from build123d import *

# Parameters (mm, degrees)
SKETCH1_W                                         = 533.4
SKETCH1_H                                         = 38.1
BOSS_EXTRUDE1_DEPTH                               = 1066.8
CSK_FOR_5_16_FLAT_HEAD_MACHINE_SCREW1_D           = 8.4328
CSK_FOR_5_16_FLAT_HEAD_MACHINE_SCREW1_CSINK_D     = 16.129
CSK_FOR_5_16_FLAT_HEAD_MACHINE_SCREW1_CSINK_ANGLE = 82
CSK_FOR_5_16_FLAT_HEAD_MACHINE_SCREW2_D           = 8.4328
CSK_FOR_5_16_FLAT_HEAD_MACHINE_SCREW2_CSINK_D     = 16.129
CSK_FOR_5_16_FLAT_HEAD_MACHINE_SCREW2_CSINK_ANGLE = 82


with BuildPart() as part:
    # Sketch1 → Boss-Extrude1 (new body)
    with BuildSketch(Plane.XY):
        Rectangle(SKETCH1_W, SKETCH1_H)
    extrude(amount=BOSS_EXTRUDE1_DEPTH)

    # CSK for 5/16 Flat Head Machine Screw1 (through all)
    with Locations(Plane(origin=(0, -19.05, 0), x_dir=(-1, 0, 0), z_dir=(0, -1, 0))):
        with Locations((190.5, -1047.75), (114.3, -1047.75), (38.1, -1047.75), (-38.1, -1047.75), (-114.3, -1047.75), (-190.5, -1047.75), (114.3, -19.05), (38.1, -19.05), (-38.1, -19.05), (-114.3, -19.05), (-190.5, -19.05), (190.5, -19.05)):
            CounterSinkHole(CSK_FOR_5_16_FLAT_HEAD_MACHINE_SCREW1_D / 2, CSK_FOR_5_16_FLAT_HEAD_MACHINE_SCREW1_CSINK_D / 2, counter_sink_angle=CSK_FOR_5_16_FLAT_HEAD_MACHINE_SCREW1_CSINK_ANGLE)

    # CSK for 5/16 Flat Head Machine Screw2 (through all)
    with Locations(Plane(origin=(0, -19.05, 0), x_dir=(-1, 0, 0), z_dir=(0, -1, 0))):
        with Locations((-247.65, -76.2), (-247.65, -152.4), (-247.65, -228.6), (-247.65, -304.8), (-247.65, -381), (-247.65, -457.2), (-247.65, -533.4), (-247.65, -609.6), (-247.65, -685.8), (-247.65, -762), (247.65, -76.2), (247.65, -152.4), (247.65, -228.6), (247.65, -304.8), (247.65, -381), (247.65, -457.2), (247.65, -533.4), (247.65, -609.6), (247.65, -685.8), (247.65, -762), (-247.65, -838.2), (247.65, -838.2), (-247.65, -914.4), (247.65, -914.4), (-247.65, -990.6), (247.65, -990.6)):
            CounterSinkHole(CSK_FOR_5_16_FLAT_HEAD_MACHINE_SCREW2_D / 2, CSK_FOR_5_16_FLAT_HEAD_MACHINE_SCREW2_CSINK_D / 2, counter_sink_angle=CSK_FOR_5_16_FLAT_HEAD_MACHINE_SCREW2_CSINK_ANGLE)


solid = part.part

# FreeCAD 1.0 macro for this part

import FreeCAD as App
import Part
import Sketcher
from FreeCAD import Vector
Q = App.Units.Quantity


def add_polygon(sketch, points):
    """Adds a closed chain of lines whose ends are joined by coincident constraints."""
    first, n = sketch.GeometryCount, len(points)
    for a, b in zip(points, points[1:] + points[:1]):
        sketch.addGeometry(Part.LineSegment(App.Vector(*a, 0), App.Vector(*b, 0)), False)
    for i in range(n):
        sketch.addConstraint(Sketcher.Constraint("Coincident", first + i, 2, first + (i + 1) % n, 1))

doc = App.newDocument("Part")
body = doc.addObject("PartDesign::Body", "Body")

sketch1 = body.newObject("Sketcher::SketchObject", "Sketch")
sketch1.AttachmentSupport = (doc.getObject("XY_Plane"), [""])
sketch1.MapMode = "FlatFace"
add_polygon(sketch1, [(-267, 19), (-267, -19), (267, -19), (267, 19)])
sketch1.addConstraint([
    Sketcher.Constraint("Vertical", 0),
    Sketcher.Constraint("Horizontal", 1),
    Sketcher.Constraint("Vertical", 2),
    Sketcher.Constraint("Horizontal", 3),
    Sketcher.Constraint("Symmetric", 0, 2, 2, 2, -1, 1),
    Sketcher.Constraint("DistanceX", 1, 1, 1, 2, Q("21 in")),
    Sketcher.Constraint("DistanceY", 0, 2, 0, 1, Q("1.5 in")),
])
pad1 = body.newObject("PartDesign::Pad", "Pad")
pad1.Profile = sketch1
pad1.Length = Q("42 in")

sketch2 = body.newObject("Sketcher::SketchObject", "Sketch001")
sketch2.AttachmentSupport = (doc.getObject("XZ_Plane"), [""])
sketch2.MapMode = "FlatFace"
sketch2.AttachmentOffset = App.Placement(Vector(0, 0, 0.75 * 25.4), App.Rotation())
sketch2.addGeometry([
    Part.Circle(Vector(-190.5, 1047.8, 0), Vector(0, 0, 1), 4.2),
    Part.Circle(Vector(-114.3, 1047.8, 0), Vector(0, 0, 1), 4.2),
    Part.Circle(Vector(-38.1, 1047.8, 0), Vector(0, 0, 1), 4.2),
    Part.Circle(Vector(38.1, 1047.8, 0), Vector(0, 0, 1), 4.2),
    Part.Circle(Vector(114.3, 1047.8, 0), Vector(0, 0, 1), 4.2),
    Part.Circle(Vector(190.5, 1047.8, 0), Vector(0, 0, 1), 4.2),
    Part.Circle(Vector(-114.3, 19.1, 0), Vector(0, 0, 1), 4.2),
    Part.Circle(Vector(-38.1, 19.1, 0), Vector(0, 0, 1), 4.2),
    Part.Circle(Vector(38.1, 19.1, 0), Vector(0, 0, 1), 4.2),
    Part.Circle(Vector(114.3, 19.1, 0), Vector(0, 0, 1), 4.2),
    Part.Circle(Vector(190.5, 19.1, 0), Vector(0, 0, 1), 4.2),
    Part.Circle(Vector(-190.5, 19.1, 0), Vector(0, 0, 1), 4.2),
], False)
sketch2.addConstraint([
    Sketcher.Constraint("Equal", 0, 1),
    Sketcher.Constraint("Equal", 1, 2),
    Sketcher.Constraint("Equal", 2, 3),
    Sketcher.Constraint("Equal", 3, 4),
    Sketcher.Constraint("Equal", 4, 5),
    Sketcher.Constraint("Equal", 5, 6),
    Sketcher.Constraint("Equal", 6, 7),
    Sketcher.Constraint("Equal", 7, 8),
    Sketcher.Constraint("Equal", 8, 9),
    Sketcher.Constraint("Equal", 9, 10),
    Sketcher.Constraint("Equal", 10, 11),
    Sketcher.Constraint("Symmetric", 2, 3, 3, 3, -2),
    Sketcher.Constraint("Symmetric", 1, 3, 4, 3, -2),
    Sketcher.Constraint("Symmetric", 0, 3, 5, 3, -2),
    Sketcher.Constraint("Symmetric", 7, 3, 8, 3, -2),
    Sketcher.Constraint("Symmetric", 6, 3, 9, 3, -2),
    Sketcher.Constraint("Symmetric", 10, 3, 11, 3, -2),
    Sketcher.Constraint("Horizontal", 0, 3, 1, 3),
    Sketcher.Constraint("Horizontal", 1, 3, 2, 3),
    Sketcher.Constraint("Horizontal", 6, 3, 7, 3),
    Sketcher.Constraint("Horizontal", 9, 3, 10, 3),
    Sketcher.Constraint("Vertical", 1, 3, 6, 3),
    Sketcher.Constraint("Vertical", 2, 3, 7, 3),
    Sketcher.Constraint("Vertical", 5, 3, 10, 3),
    Sketcher.Constraint("Diameter", 0, Q("0.332 in")),
    Sketcher.Constraint("DistanceX", 0, 3, 1, 3, Q("3 in")),
    Sketcher.Constraint("DistanceX", 1, 3, 2, 3, Q("3 in")),
    Sketcher.Constraint("DistanceX", 2, 3, 3, 3, Q("3 in")),
    Sketcher.Constraint("DistanceY", 6, 3, 1, 3, Q("40.5 in")),
    Sketcher.Constraint("DistanceY", -1, 1, 0, 3, Q("41.25 in")),
])
doc.recompute()
hole = body.newObject("PartDesign::Hole", "Hole")
hole.Profile = sketch2
hole.ThreadType = "None"
hole.Diameter = Q("0.332 in")
hole.DepthType = "ThroughAll"
hole.HoleCutType = "Countersink"
hole.HoleCutDiameter = Q("0.635 in")
hole.HoleCutCountersinkAngle = 82

sketch3 = body.newObject("Sketcher::SketchObject", "Sketch002")
sketch3.AttachmentSupport = (doc.getObject("XZ_Plane"), [""])
sketch3.MapMode = "FlatFace"
sketch3.AttachmentOffset = App.Placement(Vector(0, 0, 0.75 * 25.4), App.Rotation())
sketch3.addGeometry([
    Part.Circle(Vector(247.7, 76.2, 0), Vector(0, 0, 1), 4.2),
    Part.Circle(Vector(247.7, 152.4, 0), Vector(0, 0, 1), 4.2),
    Part.Circle(Vector(247.7, 228.6, 0), Vector(0, 0, 1), 4.2),
    Part.Circle(Vector(247.7, 304.8, 0), Vector(0, 0, 1), 4.2),
    Part.Circle(Vector(247.7, 381, 0), Vector(0, 0, 1), 4.2),
    Part.Circle(Vector(247.7, 457.2, 0), Vector(0, 0, 1), 4.2),
    Part.Circle(Vector(247.7, 533.4, 0), Vector(0, 0, 1), 4.2),
    Part.Circle(Vector(247.7, 609.6, 0), Vector(0, 0, 1), 4.2),
    Part.Circle(Vector(247.7, 685.8, 0), Vector(0, 0, 1), 4.2),
    Part.Circle(Vector(247.7, 762, 0), Vector(0, 0, 1), 4.2),
    Part.Circle(Vector(-247.7, 76.2, 0), Vector(0, 0, 1), 4.2),
    Part.Circle(Vector(-247.7, 152.4, 0), Vector(0, 0, 1), 4.2),
    Part.Circle(Vector(-247.7, 228.6, 0), Vector(0, 0, 1), 4.2),
    Part.Circle(Vector(-247.7, 304.8, 0), Vector(0, 0, 1), 4.2),
    Part.Circle(Vector(-247.7, 381, 0), Vector(0, 0, 1), 4.2),
    Part.Circle(Vector(-247.7, 457.2, 0), Vector(0, 0, 1), 4.2),
    Part.Circle(Vector(-247.7, 533.4, 0), Vector(0, 0, 1), 4.2),
    Part.Circle(Vector(-247.7, 609.6, 0), Vector(0, 0, 1), 4.2),
    Part.Circle(Vector(-247.7, 685.8, 0), Vector(0, 0, 1), 4.2),
    Part.Circle(Vector(-247.7, 762, 0), Vector(0, 0, 1), 4.2),
    Part.Circle(Vector(247.7, 838.2, 0), Vector(0, 0, 1), 4.2),
    Part.Circle(Vector(-247.7, 838.2, 0), Vector(0, 0, 1), 4.2),
    Part.Circle(Vector(247.7, 914.4, 0), Vector(0, 0, 1), 4.2),
    Part.Circle(Vector(-247.7, 914.4, 0), Vector(0, 0, 1), 4.2),
    Part.Circle(Vector(247.7, 990.6, 0), Vector(0, 0, 1), 4.2),
    Part.Circle(Vector(-247.7, 990.6, 0), Vector(0, 0, 1), 4.2),
], False)
sketch3.addConstraint([
    Sketcher.Constraint("Equal", 0, 1),
    Sketcher.Constraint("Equal", 1, 2),
    Sketcher.Constraint("Equal", 2, 3),
    Sketcher.Constraint("Equal", 3, 4),
    Sketcher.Constraint("Equal", 4, 5),
    Sketcher.Constraint("Equal", 5, 6),
    Sketcher.Constraint("Equal", 6, 7),
    Sketcher.Constraint("Equal", 7, 8),
    Sketcher.Constraint("Equal", 8, 9),
    Sketcher.Constraint("Equal", 9, 10),
    Sketcher.Constraint("Equal", 10, 11),
    Sketcher.Constraint("Equal", 11, 12),
    Sketcher.Constraint("Equal", 12, 13),
    Sketcher.Constraint("Equal", 13, 14),
    Sketcher.Constraint("Equal", 14, 15),
    Sketcher.Constraint("Equal", 15, 16),
    Sketcher.Constraint("Equal", 16, 17),
    Sketcher.Constraint("Equal", 17, 18),
    Sketcher.Constraint("Equal", 18, 19),
    Sketcher.Constraint("Equal", 19, 20),
    Sketcher.Constraint("Equal", 20, 21),
    Sketcher.Constraint("Equal", 21, 22),
    Sketcher.Constraint("Equal", 22, 23),
    Sketcher.Constraint("Equal", 23, 24),
    Sketcher.Constraint("Equal", 24, 25),
    Sketcher.Constraint("Symmetric", 0, 3, 10, 3, -2),
    Sketcher.Constraint("Symmetric", 1, 3, 11, 3, -2),
    Sketcher.Constraint("Symmetric", 2, 3, 12, 3, -2),
    Sketcher.Constraint("Symmetric", 3, 3, 13, 3, -2),
    Sketcher.Constraint("Symmetric", 4, 3, 14, 3, -2),
    Sketcher.Constraint("Symmetric", 5, 3, 15, 3, -2),
    Sketcher.Constraint("Symmetric", 6, 3, 16, 3, -2),
    Sketcher.Constraint("Symmetric", 7, 3, 17, 3, -2),
    Sketcher.Constraint("Symmetric", 8, 3, 18, 3, -2),
    Sketcher.Constraint("Symmetric", 9, 3, 19, 3, -2),
    Sketcher.Constraint("Symmetric", 20, 3, 21, 3, -2),
    Sketcher.Constraint("Symmetric", 22, 3, 23, 3, -2),
    Sketcher.Constraint("Symmetric", 24, 3, 25, 3, -2),
    Sketcher.Constraint("Vertical", 0, 3, 1, 3),
    Sketcher.Constraint("Vertical", 1, 3, 2, 3),
    Sketcher.Constraint("Vertical", 2, 3, 3, 3),
    Sketcher.Constraint("Vertical", 3, 3, 4, 3),
    Sketcher.Constraint("Vertical", 4, 3, 5, 3),
    Sketcher.Constraint("Vertical", 5, 3, 6, 3),
    Sketcher.Constraint("Vertical", 6, 3, 7, 3),
    Sketcher.Constraint("Vertical", 7, 3, 8, 3),
    Sketcher.Constraint("Vertical", 8, 3, 9, 3),
    Sketcher.Constraint("Vertical", 9, 3, 20, 3),
    Sketcher.Constraint("Vertical", 20, 3, 22, 3),
    Sketcher.Constraint("Vertical", 22, 3, 24, 3),
    Sketcher.Constraint("Diameter", 0, Q("0.332 in")),
    Sketcher.Constraint("DistanceY", -1, 1, 0, 3, Q("3 in")),
    Sketcher.Constraint("DistanceY", -1, 1, 1, 3, Q("6 in")),
    Sketcher.Constraint("DistanceY", -1, 1, 2, 3, Q("9 in")),
    Sketcher.Constraint("DistanceY", -1, 1, 3, 3, Q("12 in")),
    Sketcher.Constraint("DistanceY", -1, 1, 4, 3, Q("15 in")),
    Sketcher.Constraint("DistanceY", -1, 1, 5, 3, Q("18 in")),
    Sketcher.Constraint("DistanceY", -1, 1, 6, 3, Q("21 in")),
    Sketcher.Constraint("DistanceY", -1, 1, 7, 3, Q("24 in")),
    Sketcher.Constraint("DistanceY", -1, 1, 8, 3, Q("27 in")),
    Sketcher.Constraint("DistanceY", -1, 1, 9, 3, Q("30 in")),
    Sketcher.Constraint("DistanceY", -1, 1, 20, 3, Q("33 in")),
    Sketcher.Constraint("DistanceY", -1, 1, 22, 3, Q("36 in")),
    Sketcher.Constraint("DistanceY", -1, 1, 24, 3, Q("39 in")),
    Sketcher.Constraint("DistanceX", 10, 3, 0, 3, Q("19.5 in")),
])
doc.recompute()
hole2 = body.newObject("PartDesign::Hole", "Hole001")
hole2.Profile = sketch3
hole2.ThreadType = "None"
hole2.Diameter = Q("0.332 in")
hole2.DepthType = "ThroughAll"
hole2.HoleCutType = "Countersink"
hole2.HoleCutDiameter = Q("0.635 in")
hole2.HoleCutCountersinkAngle = 82

doc.recompute()
